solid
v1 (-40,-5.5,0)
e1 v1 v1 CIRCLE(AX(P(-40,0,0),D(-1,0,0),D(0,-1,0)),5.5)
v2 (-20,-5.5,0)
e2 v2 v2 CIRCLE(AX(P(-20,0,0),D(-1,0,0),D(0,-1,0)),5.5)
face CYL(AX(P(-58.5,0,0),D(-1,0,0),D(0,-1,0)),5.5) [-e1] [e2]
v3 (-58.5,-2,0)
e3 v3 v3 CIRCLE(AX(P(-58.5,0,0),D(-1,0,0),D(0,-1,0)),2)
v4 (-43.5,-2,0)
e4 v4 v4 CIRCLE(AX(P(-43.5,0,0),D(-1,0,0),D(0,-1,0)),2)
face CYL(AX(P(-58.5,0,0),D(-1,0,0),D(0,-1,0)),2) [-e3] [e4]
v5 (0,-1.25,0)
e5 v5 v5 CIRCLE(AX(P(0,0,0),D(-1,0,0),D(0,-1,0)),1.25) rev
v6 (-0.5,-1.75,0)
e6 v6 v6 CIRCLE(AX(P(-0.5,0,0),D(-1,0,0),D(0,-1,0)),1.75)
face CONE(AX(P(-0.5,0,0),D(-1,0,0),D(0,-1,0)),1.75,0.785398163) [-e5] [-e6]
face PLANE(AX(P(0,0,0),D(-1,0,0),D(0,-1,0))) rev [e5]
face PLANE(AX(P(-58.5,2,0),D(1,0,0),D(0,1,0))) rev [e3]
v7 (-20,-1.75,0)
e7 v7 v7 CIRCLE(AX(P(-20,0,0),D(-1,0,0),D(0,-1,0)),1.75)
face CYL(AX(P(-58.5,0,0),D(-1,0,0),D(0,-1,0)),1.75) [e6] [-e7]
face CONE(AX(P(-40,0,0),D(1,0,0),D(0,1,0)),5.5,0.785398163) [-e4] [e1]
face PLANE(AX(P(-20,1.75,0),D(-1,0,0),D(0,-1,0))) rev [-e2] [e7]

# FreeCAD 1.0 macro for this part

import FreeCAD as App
import Part
import Sketcher
Q = App.Units.Quantity


def edges_at(feature, points):
    """Names of the edges that pass closest to the given points."""
    edges = feature.Shape.Edges
    near = lambda p: min(range(len(edges)), key=lambda i: edges[i].distToShape(Part.Vertex(*p))[0])
    return sorted({f"Edge{near(p) + 1}" for p in points})

doc = App.newDocument("Part")
params = doc.addObject("Spreadsheet::Sheet", "Params")
for row, (alias, value) in enumerate([
    ("sketch1_width", "20 mm"),
    ("sketch1_width2", "15 mm"),
    ("sketch1_height", "2 mm"),
    ("sketch1_width3", "58.5 mm"),
    ("sketch1_height2", "1.75 mm"),
    ("revolution_angle", "360 deg"),
    ("chamfer_size", "0.5 mm"),
], start=1):
    params.set(f"A{row}", alias)
    params.set(f"B{row}", "=" + value)
    params.setAlias(f"B{row}", alias)

body = doc.addObject("PartDesign::Body", "Body")

sketch1 = body.newObject("Sketcher::SketchObject", "Sketch")
sketch1.AttachmentSupport = (doc.getObject("XY_Plane"), [""])
sketch1.MapMode = "FlatFace"
sketch1.addGeometry([
    Part.LineSegment(App.Vector(-58.5, 0, 0), App.Vector(0, 0, 0)),
    Part.LineSegment(App.Vector(0, 0, 0), App.Vector(0, 1.8, 0)),
    Part.LineSegment(App.Vector(0, 1.8, 0), App.Vector(-20, 1.8, 0)),
    Part.LineSegment(App.Vector(-20, 1.8, 0), App.Vector(-20, 5.5, 0)),
    Part.LineSegment(App.Vector(-20, 5.5, 0), App.Vector(-40, 5.5, 0)),
    Part.LineSegment(App.Vector(-40, 5.5, 0), App.Vector(-43.5, 2, 0)),
    Part.LineSegment(App.Vector(-43.5, 2, 0), App.Vector(-58.5, 2, 0)),
    Part.LineSegment(App.Vector(-58.5, 2, 0), App.Vector(-58.5, 0, 0)),
], False)
sketch1.addConstraint([
    Sketcher.Constraint("Coincident", 0, 2, 1, 1),
    Sketcher.Constraint("Coincident", 1, 2, 2, 1),
    Sketcher.Constraint("Coincident", 2, 2, 3, 1),
    Sketcher.Constraint("Coincident", 3, 2, 4, 1),
    Sketcher.Constraint("Coincident", 4, 2, 5, 1),
    Sketcher.Constraint("Coincident", 5, 2, 6, 1),
    Sketcher.Constraint("Coincident", 6, 2, 7, 1),
    Sketcher.Constraint("Coincident", 7, 2, 0, 1),
    Sketcher.Constraint("Horizontal", 0),
    Sketcher.Constraint("Vertical", 1),
    Sketcher.Constraint("Horizontal", 2),
    Sketcher.Constraint("Vertical", 3),
    Sketcher.Constraint("Horizontal", 4),
    Sketcher.Constraint("Horizontal", 6),
    Sketcher.Constraint("Vertical", 7),
    Sketcher.Constraint("Coincident", 0, 2, -1, 1),
    Sketcher.Constraint("Equal", 2, 4),
    Sketcher.Constraint("DistanceX", 2, 2, 2, 1, 20.0),
    Sketcher.Constraint("DistanceX", 6, 2, 6, 1, 15.0),
    Sketcher.Constraint("DistanceY", 7, 2, 7, 1, 2.0),
    Sketcher.Constraint("Angle", 5, Q("-135 deg")),
    Sketcher.Constraint("DistanceX", 0, 1, 0, 2, 58.5),
    Sketcher.Constraint("DistanceY", 1, 1, 1, 2, 1.75),
])
sketch1.setExpression("Constraints[17]", "Params.sketch1_width")
sketch1.setExpression("Constraints[18]", "Params.sketch1_width2")
sketch1.setExpression("Constraints[19]", "Params.sketch1_height")
sketch1.setExpression("Constraints[21]", "Params.sketch1_width3")
sketch1.setExpression("Constraints[22]", "Params.sketch1_height2")
revolution = body.newObject("PartDesign::Revolution", "Revolution")
revolution.Profile = sketch1
revolution.ReferenceAxis = (sketch1, ["H_Axis"])
revolution.setExpression("Angle", "Params.revolution_angle")
doc.recompute()

chamfer = body.newObject("PartDesign::Chamfer", "Chamfer")
chamfer.Base = (revolution, edges_at(revolution, [(0, 1.75, 0)]))
chamfer.setExpression("Size", "Params.chamfer_size")

doc.recompute()
